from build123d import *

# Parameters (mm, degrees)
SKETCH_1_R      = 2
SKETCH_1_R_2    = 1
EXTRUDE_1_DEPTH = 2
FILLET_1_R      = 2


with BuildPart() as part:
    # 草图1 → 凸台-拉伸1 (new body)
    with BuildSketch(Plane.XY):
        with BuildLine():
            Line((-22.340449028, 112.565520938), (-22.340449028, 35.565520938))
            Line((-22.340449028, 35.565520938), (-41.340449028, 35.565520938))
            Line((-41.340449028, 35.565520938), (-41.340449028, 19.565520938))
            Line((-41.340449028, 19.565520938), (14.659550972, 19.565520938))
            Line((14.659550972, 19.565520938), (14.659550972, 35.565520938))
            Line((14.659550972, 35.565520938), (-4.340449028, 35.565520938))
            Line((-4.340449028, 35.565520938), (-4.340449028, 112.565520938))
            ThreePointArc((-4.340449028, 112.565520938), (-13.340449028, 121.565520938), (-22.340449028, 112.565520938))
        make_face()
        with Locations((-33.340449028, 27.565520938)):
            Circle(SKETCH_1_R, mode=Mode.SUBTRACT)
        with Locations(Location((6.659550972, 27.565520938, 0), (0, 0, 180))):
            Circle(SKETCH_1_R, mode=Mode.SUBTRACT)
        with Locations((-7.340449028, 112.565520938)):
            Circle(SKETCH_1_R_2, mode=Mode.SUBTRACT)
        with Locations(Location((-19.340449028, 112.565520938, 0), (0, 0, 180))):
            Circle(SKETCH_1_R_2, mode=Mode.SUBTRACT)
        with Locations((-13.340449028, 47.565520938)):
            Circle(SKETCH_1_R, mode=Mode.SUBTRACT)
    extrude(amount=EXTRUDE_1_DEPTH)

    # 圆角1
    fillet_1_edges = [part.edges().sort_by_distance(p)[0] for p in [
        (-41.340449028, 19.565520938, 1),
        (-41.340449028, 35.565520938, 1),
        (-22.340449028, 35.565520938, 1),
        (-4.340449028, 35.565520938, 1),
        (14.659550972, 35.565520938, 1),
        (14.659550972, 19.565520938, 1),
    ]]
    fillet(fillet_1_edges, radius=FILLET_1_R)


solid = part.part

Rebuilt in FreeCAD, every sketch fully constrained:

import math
import FreeCAD as App
import Part
import Sketcher
Q = App.Units.Quantity


def edges_at(feature, points):
    """Names of the edges that pass closest to the given points."""
    edges = feature.Shape.Edges
    near = lambda p: min(range(len(edges)), key=lambda i: edges[i].distToShape(Part.Vertex(*p))[0])
    return sorted({f"Edge{near(p) + 1}" for p in points})

doc = App.newDocument("Part")
body = doc.addObject("PartDesign::Body", "Body")

# Sketch on XY plane
sketch1 = body.newObject("Sketcher::SketchObject", "Sketch")
sketch1.AttachmentSupport = (doc.getObject("XY_Plane"), [""])
sketch1.MapMode = "FlatFace"
sketch1.addGeometry([
    Part.LineSegment(App.Vector(-22.3, 112.6, 0), App.Vector(-22.3, 35.6, 0)),  # 0
    Part.LineSegment(App.Vector(-22.3, 35.6, 0), App.Vector(-41.3, 35.6, 0)),  # 1
    Part.LineSegment(App.Vector(-41.3, 35.6, 0), App.Vector(-41.3, 19.6, 0)),  # 2
    Part.LineSegment(App.Vector(-41.3, 19.6, 0), App.Vector(14.7, 19.6, 0)),  # 3
    Part.LineSegment(App.Vector(14.7, 19.6, 0), App.Vector(14.7, 35.6, 0)),  # 4
    Part.LineSegment(App.Vector(14.7, 35.6, 0), App.Vector(-4.3, 35.6, 0)),  # 5
    Part.LineSegment(App.Vector(-4.3, 35.6, 0), App.Vector(-4.3, 112.6, 0)),  # 6
    Part.ArcOfCircle(Part.Circle(App.Vector(-13.3, 112.6, 0), App.Vector(0, 0, 1), 9), math.radians(0), math.radians(180)),  # 7
    Part.Circle(App.Vector(-33.3, 27.6, 0), App.Vector(0, 0, 1), 2),  # 8
    Part.Circle(App.Vector(6.7, 27.6, 0), App.Vector(0, 0, 1), 2),  # 9
    Part.Circle(App.Vector(-13.3, 47.6, 0), App.Vector(0, 0, 1), 2),  # 10
    Part.Circle(App.Vector(-19.3, 112.6, 0), App.Vector(0, 0, 1), 1),  # 11
    Part.Circle(App.Vector(-7.3, 112.6, 0), App.Vector(0, 0, 1), 1),  # 12
], False)
sketch1.addConstraint([
    Sketcher.Constraint("Coincident", 0, 2, 1, 1),
    Sketcher.Constraint("Coincident", 1, 2, 2, 1),
    Sketcher.Constraint("Coincident", 2, 2, 3, 1),
    Sketcher.Constraint("Coincident", 3, 2, 4, 1),
    Sketcher.Constraint("Coincident", 4, 2, 5, 1),
    Sketcher.Constraint("Coincident", 5, 2, 6, 1),
    Sketcher.Constraint("Tangent", 6, 2, 7, 1),
    Sketcher.Constraint("Tangent", 7, 2, 0, 1),
    Sketcher.Constraint("Vertical", 0),
    Sketcher.Constraint("Horizontal", 1),
    Sketcher.Constraint("Vertical", 2),
    Sketcher.Constraint("Horizontal", 3),
    Sketcher.Constraint("Vertical", 4),
    Sketcher.Constraint("Horizontal", 5),
    Sketcher.Constraint("Vertical", 6),
    Sketcher.Constraint("Equal", 8, 9),
    Sketcher.Constraint("Equal", 9, 10),
    Sketcher.Constraint("Equal", 11, 12),
    Sketcher.Constraint("Horizontal", 8, 3, 9, 3),
    Sketcher.Constraint("Horizontal", 7, 3, 11, 3),
    Sketcher.Constraint("Horizontal", 11, 3, 12, 3),
    Sketcher.Constraint("Horizontal", 1, 2, 4, 2),
    Sketcher.Constraint("Vertical", 7, 3, 10, 3),
    Sketcher.Constraint("Equal", 1, 5),
    Sketcher.Constraint("Diameter", 8, Q("4 mm")),
    Sketcher.Constraint("Diameter", 11, Q("2 mm")),
    Sketcher.Constraint("Radius", 7, Q("9 mm")),
    Sketcher.Constraint("DistanceX", 1, 2, 1, 1, Q("19 mm")),
    Sketcher.Constraint("DistanceY", 0, 2, 0, 1, Q("77 mm")),
    Sketcher.Constraint("DistanceY", 2, 2, 2, 1, Q("16 mm")),
    Sketcher.Constraint("DistanceX", 8, 3, 7, 3, Q("20 mm")),
    Sketcher.Constraint("DistanceY", 8, 3, 7, 3, Q("85 mm")),
    Sketcher.Constraint("DistanceX", 8, 3, 9, 3, Q("40 mm")),
    Sketcher.Constraint("DistanceY", 8, 3, 10, 3, Q("20 mm")),
    Sketcher.Constraint("DistanceX", 11, 3, 7, 3, Q("6 mm")),
    Sketcher.Constraint("DistanceX", 7, 3, 12, 3, Q("6 mm")),
    Sketcher.Constraint("DistanceX", 7, 3, -1, 1, Q("13.340449 mm")),
    Sketcher.Constraint("DistanceY", -1, 1, 7, 3, Q("112.565521 mm")),
])
pad1 = body.newObject("PartDesign::Pad", "Pad")
pad1.Profile = sketch1
pad1.Length = 2
doc.recompute()

fillet = body.newObject("PartDesign::Fillet", "Fillet")
fillet.Base = (pad1, edges_at(pad1, [
    (-41.34, 19.566, 1),
    (-41.34, 35.566, 1),
    (-22.34, 35.566, 1),
    (-4.34, 35.566, 1),
    (14.66, 35.566, 1),
    (14.66, 19.566, 1),
]))
fillet.Radius = 2

doc.recompute()
